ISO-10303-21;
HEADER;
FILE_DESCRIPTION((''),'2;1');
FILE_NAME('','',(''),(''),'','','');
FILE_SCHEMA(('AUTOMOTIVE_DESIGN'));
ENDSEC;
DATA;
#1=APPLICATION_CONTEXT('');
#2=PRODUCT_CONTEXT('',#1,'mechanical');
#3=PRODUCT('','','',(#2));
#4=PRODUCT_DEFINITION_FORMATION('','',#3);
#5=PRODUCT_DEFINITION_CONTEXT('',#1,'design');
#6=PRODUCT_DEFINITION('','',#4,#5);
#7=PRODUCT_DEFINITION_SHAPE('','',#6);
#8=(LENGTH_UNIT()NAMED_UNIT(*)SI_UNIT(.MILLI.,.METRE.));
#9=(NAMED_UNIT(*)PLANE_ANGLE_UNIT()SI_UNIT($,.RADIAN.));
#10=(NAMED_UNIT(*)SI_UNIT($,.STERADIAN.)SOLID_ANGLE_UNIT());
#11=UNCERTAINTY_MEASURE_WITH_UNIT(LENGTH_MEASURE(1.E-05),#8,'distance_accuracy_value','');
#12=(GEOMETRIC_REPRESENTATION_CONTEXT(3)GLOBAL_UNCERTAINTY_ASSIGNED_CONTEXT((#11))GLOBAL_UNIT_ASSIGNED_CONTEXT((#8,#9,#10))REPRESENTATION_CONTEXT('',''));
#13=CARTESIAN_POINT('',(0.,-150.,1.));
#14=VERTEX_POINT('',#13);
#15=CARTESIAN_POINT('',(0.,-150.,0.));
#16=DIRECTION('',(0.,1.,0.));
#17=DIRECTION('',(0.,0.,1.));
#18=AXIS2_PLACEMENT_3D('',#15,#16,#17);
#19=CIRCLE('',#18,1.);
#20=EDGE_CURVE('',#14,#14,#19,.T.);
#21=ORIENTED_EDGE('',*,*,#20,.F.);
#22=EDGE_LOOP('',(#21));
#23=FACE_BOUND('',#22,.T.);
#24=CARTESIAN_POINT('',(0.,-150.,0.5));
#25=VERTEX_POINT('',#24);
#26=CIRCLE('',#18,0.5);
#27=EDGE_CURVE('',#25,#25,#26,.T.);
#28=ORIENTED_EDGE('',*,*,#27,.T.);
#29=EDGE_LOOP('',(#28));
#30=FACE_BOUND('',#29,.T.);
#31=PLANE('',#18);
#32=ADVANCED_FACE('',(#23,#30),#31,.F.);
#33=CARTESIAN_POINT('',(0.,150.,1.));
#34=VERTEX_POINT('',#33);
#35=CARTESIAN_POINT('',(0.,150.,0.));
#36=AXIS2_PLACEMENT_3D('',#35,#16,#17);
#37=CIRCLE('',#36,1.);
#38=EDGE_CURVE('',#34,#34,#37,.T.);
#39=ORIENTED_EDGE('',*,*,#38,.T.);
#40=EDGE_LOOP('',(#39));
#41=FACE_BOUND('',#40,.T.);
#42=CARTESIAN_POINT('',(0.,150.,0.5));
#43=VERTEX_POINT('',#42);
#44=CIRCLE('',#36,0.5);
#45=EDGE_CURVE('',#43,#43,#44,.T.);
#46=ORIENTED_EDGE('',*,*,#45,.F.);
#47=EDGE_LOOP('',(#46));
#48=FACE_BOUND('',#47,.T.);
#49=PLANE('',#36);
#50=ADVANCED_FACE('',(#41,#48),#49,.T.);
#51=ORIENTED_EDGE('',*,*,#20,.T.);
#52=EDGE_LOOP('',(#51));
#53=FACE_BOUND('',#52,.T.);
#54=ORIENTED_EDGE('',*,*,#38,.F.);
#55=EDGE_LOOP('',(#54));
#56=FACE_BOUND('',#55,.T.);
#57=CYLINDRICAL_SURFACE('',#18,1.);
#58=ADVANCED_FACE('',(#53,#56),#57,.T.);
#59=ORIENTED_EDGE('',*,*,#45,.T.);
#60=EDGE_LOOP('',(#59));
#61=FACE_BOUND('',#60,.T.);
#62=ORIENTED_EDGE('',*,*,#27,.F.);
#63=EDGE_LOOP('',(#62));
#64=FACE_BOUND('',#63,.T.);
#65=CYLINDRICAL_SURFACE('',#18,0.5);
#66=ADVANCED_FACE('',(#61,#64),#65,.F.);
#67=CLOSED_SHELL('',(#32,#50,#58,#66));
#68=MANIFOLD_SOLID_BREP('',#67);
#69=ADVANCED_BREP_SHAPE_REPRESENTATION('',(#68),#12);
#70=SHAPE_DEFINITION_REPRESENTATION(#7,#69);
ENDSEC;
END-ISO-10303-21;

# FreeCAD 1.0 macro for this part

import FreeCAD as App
import Part
import Sketcher

doc = App.newDocument("Part")
body = doc.addObject("PartDesign::Body", "Body")

# Sketch on XZ plane
sketch1 = body.newObject("Sketcher::SketchObject", "Sketch")
sketch1.AttachmentSupport = (doc.getObject("XZ_Plane"), [""])
sketch1.MapMode = "FlatFace"
sketch1.addGeometry(Part.Circle(App.Vector(0, 0, 0), App.Vector(0, 0, 1), 1), False)
sketch1.addGeometry(Part.Circle(App.Vector(0, 0, 0), App.Vector(0, 0, 1), 0.5), False)
sketch1.addConstraint(Sketcher.Constraint("Coincident", 0, 3, -1, 1))
sketch1.addConstraint(Sketcher.Constraint("Coincident", 1, 3, -1, 1))
sketch1.addConstraint(Sketcher.Constraint("Diameter", 0, 2.0))
sketch1.addConstraint(Sketcher.Constraint("Diameter", 1, 1.0))
pad1 = body.newObject("PartDesign::Pad", "Pad")
pad1.Profile = sketch1
pad1.Type = "TwoLengths"
pad1.Length = 150
pad1.Length2 = 150
pad1.Reversed = True

doc.recompute()
